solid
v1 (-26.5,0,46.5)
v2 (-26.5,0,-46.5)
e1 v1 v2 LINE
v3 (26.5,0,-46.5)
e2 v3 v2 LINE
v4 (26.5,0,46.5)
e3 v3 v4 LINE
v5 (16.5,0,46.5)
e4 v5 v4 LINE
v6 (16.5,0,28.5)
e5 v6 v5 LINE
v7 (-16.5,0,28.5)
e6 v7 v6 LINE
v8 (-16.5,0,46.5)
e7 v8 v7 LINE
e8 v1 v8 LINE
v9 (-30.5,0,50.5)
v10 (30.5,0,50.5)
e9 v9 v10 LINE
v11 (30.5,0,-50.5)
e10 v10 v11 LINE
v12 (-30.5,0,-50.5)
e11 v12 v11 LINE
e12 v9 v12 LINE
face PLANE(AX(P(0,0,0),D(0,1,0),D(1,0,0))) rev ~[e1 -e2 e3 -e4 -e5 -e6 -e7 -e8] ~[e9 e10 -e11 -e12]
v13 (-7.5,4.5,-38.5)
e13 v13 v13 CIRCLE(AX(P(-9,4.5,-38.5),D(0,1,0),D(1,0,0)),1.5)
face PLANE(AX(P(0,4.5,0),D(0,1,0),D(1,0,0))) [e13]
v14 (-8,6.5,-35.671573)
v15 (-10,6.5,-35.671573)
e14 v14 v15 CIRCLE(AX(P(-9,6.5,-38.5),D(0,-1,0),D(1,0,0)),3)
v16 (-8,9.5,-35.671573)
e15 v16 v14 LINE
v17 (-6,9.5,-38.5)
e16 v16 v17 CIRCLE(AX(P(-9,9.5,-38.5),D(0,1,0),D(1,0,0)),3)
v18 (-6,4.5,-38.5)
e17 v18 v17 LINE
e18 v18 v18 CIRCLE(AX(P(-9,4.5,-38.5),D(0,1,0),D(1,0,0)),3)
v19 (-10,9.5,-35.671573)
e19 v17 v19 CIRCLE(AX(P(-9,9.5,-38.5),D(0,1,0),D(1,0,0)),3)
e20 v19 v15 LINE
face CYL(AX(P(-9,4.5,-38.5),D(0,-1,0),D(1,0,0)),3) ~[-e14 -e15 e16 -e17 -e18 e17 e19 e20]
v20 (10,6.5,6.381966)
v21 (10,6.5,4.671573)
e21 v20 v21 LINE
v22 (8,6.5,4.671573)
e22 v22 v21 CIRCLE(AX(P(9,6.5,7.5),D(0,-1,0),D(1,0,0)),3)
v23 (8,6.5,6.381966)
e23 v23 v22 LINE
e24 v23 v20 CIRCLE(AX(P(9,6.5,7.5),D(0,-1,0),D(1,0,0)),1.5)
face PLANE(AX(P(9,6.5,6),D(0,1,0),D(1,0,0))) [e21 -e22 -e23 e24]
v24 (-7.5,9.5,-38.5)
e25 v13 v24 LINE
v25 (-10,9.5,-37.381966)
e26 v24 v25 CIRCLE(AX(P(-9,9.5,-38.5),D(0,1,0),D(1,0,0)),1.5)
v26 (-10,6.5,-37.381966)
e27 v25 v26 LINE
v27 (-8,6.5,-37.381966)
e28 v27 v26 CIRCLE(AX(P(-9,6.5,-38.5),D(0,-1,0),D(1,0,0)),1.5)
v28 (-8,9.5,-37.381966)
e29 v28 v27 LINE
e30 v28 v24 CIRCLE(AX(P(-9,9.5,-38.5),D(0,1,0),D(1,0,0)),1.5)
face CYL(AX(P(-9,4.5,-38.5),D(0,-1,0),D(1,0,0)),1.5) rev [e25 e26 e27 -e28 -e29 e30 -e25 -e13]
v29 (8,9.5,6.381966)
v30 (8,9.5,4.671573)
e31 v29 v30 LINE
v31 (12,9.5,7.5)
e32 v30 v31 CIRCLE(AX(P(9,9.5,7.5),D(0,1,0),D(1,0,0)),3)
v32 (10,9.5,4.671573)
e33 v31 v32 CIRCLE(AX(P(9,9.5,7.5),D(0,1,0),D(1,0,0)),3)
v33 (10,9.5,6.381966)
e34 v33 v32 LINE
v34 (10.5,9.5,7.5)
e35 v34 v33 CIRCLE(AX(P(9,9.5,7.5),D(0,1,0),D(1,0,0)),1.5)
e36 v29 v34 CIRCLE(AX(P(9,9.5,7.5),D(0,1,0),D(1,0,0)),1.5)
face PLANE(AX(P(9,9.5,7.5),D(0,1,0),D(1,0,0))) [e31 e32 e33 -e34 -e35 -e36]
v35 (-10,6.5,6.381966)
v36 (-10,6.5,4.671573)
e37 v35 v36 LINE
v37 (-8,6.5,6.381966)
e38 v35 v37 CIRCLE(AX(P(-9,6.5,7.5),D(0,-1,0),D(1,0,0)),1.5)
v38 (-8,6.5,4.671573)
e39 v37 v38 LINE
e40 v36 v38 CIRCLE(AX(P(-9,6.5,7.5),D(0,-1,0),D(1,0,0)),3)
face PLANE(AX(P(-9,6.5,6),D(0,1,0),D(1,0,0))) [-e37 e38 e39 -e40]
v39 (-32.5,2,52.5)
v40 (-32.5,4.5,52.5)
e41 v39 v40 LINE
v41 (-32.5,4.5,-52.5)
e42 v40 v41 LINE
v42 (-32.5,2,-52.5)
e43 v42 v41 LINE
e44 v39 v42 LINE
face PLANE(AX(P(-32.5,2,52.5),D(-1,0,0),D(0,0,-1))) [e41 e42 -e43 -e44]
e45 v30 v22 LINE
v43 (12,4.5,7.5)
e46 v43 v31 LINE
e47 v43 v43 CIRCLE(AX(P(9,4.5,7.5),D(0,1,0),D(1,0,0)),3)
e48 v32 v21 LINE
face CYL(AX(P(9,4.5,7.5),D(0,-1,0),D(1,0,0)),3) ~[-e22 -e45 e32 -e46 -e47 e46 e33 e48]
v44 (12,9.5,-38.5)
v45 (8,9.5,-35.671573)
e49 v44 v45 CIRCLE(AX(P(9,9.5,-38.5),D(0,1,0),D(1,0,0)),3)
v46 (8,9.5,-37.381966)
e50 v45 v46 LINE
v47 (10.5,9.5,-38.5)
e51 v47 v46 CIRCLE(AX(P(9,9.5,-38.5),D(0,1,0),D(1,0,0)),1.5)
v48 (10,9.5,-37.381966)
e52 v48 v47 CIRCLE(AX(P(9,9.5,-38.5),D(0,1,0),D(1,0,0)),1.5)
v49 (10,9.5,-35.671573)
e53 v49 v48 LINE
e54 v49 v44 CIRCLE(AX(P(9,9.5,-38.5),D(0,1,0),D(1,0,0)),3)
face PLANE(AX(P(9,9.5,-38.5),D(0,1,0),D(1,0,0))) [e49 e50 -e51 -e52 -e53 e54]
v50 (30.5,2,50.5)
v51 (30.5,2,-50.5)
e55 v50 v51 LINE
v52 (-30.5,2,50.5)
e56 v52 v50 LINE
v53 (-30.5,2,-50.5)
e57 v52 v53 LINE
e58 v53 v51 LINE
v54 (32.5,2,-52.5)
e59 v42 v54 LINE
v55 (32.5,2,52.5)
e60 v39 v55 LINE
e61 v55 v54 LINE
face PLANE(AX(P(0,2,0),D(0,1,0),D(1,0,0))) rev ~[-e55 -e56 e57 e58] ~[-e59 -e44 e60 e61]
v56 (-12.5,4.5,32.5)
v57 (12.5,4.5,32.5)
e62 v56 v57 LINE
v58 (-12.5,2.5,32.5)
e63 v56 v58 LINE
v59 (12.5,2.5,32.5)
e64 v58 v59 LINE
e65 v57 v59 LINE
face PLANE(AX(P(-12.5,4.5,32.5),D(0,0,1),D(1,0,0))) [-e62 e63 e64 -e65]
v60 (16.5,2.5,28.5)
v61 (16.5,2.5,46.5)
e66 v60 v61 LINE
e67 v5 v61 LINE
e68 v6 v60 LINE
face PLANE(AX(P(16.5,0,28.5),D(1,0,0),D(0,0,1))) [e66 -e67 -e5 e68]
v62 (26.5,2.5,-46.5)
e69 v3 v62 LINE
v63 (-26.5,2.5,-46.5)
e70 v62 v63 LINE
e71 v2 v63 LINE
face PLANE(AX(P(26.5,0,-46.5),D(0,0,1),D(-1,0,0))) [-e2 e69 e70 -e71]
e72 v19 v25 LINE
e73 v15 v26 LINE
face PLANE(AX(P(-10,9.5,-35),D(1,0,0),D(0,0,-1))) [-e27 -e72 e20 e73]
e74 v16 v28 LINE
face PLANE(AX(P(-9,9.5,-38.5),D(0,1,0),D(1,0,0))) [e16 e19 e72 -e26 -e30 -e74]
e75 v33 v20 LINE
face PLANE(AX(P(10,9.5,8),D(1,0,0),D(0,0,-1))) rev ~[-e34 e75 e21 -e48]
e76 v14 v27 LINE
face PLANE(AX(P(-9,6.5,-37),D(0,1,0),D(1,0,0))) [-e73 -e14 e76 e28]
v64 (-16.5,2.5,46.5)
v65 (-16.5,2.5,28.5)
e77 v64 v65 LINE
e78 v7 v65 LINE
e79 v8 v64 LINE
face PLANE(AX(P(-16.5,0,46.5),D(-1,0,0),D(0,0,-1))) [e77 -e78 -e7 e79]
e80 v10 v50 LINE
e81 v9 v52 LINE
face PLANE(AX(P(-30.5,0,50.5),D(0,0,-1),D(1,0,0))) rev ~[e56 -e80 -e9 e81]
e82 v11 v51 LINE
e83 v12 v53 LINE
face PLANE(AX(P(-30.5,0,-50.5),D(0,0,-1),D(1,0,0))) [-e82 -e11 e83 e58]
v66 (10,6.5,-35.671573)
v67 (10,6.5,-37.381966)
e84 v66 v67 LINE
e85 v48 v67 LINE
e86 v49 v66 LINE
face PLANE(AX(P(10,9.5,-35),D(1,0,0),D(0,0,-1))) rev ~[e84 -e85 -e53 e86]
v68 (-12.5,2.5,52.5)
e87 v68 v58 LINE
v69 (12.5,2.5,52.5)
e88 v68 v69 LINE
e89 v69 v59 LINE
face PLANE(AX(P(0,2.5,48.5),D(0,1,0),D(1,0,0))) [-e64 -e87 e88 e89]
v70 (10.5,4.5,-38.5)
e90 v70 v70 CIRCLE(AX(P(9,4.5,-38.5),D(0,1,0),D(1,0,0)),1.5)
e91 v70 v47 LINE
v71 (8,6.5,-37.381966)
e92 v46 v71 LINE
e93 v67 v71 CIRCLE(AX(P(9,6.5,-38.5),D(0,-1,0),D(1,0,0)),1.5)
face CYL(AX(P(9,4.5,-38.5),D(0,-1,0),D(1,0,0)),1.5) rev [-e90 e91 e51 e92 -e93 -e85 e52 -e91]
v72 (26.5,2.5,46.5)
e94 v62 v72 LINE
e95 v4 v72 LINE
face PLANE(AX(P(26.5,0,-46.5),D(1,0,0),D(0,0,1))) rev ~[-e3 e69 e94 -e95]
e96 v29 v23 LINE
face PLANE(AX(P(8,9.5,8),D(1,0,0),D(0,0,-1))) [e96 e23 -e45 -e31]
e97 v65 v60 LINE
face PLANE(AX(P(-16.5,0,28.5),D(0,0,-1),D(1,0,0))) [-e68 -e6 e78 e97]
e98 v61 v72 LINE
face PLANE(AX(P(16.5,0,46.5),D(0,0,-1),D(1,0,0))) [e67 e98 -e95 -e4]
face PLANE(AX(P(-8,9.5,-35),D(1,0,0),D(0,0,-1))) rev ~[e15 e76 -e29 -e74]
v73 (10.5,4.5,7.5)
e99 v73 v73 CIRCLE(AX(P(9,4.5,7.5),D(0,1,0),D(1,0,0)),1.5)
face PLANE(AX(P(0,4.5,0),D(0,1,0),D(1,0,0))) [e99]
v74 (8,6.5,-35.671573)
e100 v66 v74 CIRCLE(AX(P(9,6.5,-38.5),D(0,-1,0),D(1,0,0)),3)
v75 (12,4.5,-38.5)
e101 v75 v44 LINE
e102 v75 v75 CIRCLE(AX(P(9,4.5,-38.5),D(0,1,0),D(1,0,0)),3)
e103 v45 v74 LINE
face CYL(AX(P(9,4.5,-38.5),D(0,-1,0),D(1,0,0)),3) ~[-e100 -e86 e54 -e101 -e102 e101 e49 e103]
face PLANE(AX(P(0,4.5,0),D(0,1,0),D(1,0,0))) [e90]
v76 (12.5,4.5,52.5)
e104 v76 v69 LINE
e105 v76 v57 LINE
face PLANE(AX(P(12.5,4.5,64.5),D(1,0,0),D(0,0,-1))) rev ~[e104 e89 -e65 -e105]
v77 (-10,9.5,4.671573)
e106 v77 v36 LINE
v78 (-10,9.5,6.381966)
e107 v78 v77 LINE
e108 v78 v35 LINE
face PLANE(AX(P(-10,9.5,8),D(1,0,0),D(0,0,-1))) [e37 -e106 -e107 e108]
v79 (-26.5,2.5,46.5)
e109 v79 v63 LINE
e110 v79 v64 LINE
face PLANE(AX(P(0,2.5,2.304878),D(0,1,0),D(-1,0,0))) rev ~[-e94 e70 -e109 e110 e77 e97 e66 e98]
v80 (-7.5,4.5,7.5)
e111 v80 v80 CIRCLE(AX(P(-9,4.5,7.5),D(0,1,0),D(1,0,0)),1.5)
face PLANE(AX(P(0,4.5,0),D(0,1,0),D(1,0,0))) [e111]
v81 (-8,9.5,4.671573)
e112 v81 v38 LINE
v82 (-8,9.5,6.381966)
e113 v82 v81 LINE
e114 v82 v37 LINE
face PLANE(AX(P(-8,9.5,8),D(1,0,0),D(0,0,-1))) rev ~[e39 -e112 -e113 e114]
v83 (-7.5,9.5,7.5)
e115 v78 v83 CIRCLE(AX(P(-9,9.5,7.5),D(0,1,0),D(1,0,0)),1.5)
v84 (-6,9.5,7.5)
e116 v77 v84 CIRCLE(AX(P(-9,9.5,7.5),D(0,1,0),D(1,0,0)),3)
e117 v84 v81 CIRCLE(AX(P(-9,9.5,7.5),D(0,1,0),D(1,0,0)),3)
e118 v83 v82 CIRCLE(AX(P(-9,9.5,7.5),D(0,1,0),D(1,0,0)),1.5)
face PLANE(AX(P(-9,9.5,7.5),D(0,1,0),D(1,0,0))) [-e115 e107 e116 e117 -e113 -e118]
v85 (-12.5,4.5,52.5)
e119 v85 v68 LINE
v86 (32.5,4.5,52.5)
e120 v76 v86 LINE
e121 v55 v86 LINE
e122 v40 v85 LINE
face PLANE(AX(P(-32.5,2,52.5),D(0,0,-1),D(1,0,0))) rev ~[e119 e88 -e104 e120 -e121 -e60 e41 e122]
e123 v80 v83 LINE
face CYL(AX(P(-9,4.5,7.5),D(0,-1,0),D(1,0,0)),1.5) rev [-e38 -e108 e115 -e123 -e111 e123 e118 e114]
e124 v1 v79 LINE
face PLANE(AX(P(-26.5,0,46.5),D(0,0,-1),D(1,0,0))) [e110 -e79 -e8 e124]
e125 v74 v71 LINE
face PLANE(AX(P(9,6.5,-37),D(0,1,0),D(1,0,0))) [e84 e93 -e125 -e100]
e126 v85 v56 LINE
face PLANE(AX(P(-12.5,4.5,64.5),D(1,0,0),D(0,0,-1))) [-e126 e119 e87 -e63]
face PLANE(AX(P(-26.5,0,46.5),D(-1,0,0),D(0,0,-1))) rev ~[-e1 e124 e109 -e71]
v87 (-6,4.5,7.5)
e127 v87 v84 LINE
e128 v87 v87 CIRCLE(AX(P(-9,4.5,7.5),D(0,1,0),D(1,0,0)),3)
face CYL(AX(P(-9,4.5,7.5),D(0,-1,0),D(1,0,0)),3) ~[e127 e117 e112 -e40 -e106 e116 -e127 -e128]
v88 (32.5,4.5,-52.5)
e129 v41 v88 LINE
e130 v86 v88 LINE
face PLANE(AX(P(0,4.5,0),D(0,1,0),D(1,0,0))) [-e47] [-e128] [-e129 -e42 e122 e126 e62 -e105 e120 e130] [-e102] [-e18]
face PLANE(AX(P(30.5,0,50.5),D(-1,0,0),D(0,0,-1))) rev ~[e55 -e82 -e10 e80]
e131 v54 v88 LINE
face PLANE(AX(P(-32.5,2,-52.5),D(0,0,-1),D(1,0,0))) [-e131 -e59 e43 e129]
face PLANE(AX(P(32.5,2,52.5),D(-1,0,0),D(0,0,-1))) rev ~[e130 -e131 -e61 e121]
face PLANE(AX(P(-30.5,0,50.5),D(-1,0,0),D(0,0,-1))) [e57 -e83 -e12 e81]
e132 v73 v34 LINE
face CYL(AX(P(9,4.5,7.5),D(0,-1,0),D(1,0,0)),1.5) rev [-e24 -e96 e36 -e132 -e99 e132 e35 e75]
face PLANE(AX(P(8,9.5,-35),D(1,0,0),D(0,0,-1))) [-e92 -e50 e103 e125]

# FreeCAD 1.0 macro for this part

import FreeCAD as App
import Part
import Sketcher

V = App.Vector

doc = App.newDocument("Part")
body = doc.addObject("PartDesign::Body", "Body")

# Sketch on XZ plane
sketch1 = body.newObject("Sketcher::SketchObject", "Sketch")
sketch1.AttachmentSupport = (doc.getObject("XZ_Plane"), [""])
sketch1.MapMode = "FlatFace"
sketch1.addGeometry([
    Part.LineSegment(V(-30.5, -50.5, 0), V(-30.5, 50.5, 0)),
    Part.LineSegment(V(-30.5, 50.5, 0), V(30.5, 50.5, 0)),
    Part.LineSegment(V(30.5, 50.5, 0), V(30.5, -50.5, 0)),
    Part.LineSegment(V(30.5, -50.5, 0), V(-30.5, -50.5, 0)),
], False)
sketch1.addConstraint([
    Sketcher.Constraint("Coincident", 0, 2, 1, 1),
    Sketcher.Constraint("Coincident", 1, 2, 2, 1),
    Sketcher.Constraint("Coincident", 2, 2, 3, 1),
    Sketcher.Constraint("Coincident", 3, 2, 0, 1),
    Sketcher.Constraint("Vertical", 0),
    Sketcher.Constraint("Horizontal", 1),
    Sketcher.Constraint("Vertical", 2),
    Sketcher.Constraint("Horizontal", 3),
    Sketcher.Constraint("Symmetric", 0, 2, 2, 2, -1, 1),
    Sketcher.Constraint("DistanceX", 1, 1, 1, 2, 61.0),
    Sketcher.Constraint("DistanceY", 0, 1, 0, 2, 101.0),
])
pad1 = body.newObject("PartDesign::Pad", "Pad")
pad1.Profile = sketch1
pad1.Length = 2
pad1.Reversed = True

# Sketch on XZ plane
sketch2 = body.newObject("Sketcher::SketchObject", "Sketch001")
sketch2.AttachmentSupport = (doc.getObject("XZ_Plane"), [""])
sketch2.MapMode = "FlatFace"
sketch2.AttachmentOffset = App.Placement(V(0, 0, -2), App.Rotation())
sketch2.addGeometry([
    Part.LineSegment(V(-32.5, -52.5, 0), V(-32.5, 52.5, 0)),
    Part.LineSegment(V(-32.5, 52.5, 0), V(32.5, 52.5, 0)),
    Part.LineSegment(V(32.5, 52.5, 0), V(32.5, -52.5, 0)),
    Part.LineSegment(V(32.5, -52.5, 0), V(-32.5, -52.5, 0)),
], False)
sketch2.addConstraint([
    Sketcher.Constraint("Coincident", 0, 2, 1, 1),
    Sketcher.Constraint("Coincident", 1, 2, 2, 1),
    Sketcher.Constraint("Coincident", 2, 2, 3, 1),
    Sketcher.Constraint("Coincident", 3, 2, 0, 1),
    Sketcher.Constraint("Vertical", 0),
    Sketcher.Constraint("Horizontal", 1),
    Sketcher.Constraint("Vertical", 2),
    Sketcher.Constraint("Horizontal", 3),
    Sketcher.Constraint("Symmetric", 0, 2, 2, 2, -1, 1),
    Sketcher.Constraint("DistanceX", 1, 1, 1, 2, 65.0),
    Sketcher.Constraint("DistanceY", 0, 1, 0, 2, 105.0),
])
pad2 = body.newObject("PartDesign::Pad", "Pad001")
pad2.Profile = sketch2
pad2.Length = 2.5
pad2.Reversed = True

# Sketch on XZ plane
sketch3 = body.newObject("Sketcher::SketchObject", "Sketch002")
sketch3.AttachmentSupport = (doc.getObject("XZ_Plane"), [""])
sketch3.MapMode = "FlatFace"
sketch3.AttachmentOffset = App.Placement(V(0, 0, -4.5), App.Rotation())
sketch3.addGeometry([
    Part.Circle(V(-9, 7.5, 0), V(0, 0, 1), 3),  # 0
    Part.Circle(V(-9, 7.5, 0), V(0, 0, 1), 1.5),  # 1
    Part.Circle(V(9, 7.5, 0), V(0, 0, 1), 3),  # 2
    Part.Circle(V(9, 7.5, 0), V(0, 0, 1), 1.5),  # 3
    Part.Circle(V(9, -38.5, 0), V(0, 0, 1), 3),  # 4
    Part.Circle(V(9, -38.5, 0), V(0, 0, 1), 1.5),  # 5
    Part.Circle(V(-9, -38.5, 0), V(0, 0, 1), 3),  # 6
    Part.Circle(V(-9, -38.5, 0), V(0, 0, 1), 1.5),  # 7
], False)
sketch3.addConstraint([
    Sketcher.Constraint("Coincident", 1, 3, 0, 3),
    Sketcher.Constraint("Coincident", 3, 3, 2, 3),
    Sketcher.Constraint("Coincident", 5, 3, 4, 3),
    Sketcher.Constraint("Coincident", 7, 3, 6, 3),
    Sketcher.Constraint("Equal", 0, 2),
    Sketcher.Constraint("Equal", 1, 3),
    Sketcher.Constraint("Equal", 2, 4),
    Sketcher.Constraint("Equal", 3, 5),
    Sketcher.Constraint("Equal", 4, 6),
    Sketcher.Constraint("Equal", 5, 7),
    Sketcher.Constraint("Symmetric", 0, 3, 2, 3, -2),
    Sketcher.Constraint("Symmetric", 4, 3, 6, 3, -2),
    Sketcher.Constraint("Vertical", 3, 3, 4, 3),
    Sketcher.Constraint("Diameter", 0, 6.0),
    Sketcher.Constraint("Diameter", 1, 3.0),
    Sketcher.Constraint("DistanceX", 0, 3, -1, 1, 9.0),
    Sketcher.Constraint("DistanceY", 4, 3, 2, 3, 46.0),
    Sketcher.Constraint("DistanceY", -1, 1, 0, 3, 7.5),
])
pad3 = body.newObject("PartDesign::Pad", "Pad002")
pad3.Profile = sketch3
pad3.Length = 5
pad3.Reversed = True

# Sketch on XZ plane
sketch4 = body.newObject("Sketcher::SketchObject", "Sketch003")
sketch4.AttachmentSupport = (doc.getObject("XZ_Plane"), [""])
sketch4.MapMode = "FlatFace"
sketch4.AttachmentOffset = App.Placement(V(0, 0, -4.5), App.Rotation())
sketch4.addGeometry([
    Part.LineSegment(V(-12.5, 32.5, 0), V(-12.5, 64.5, 0)),
    Part.LineSegment(V(-12.5, 64.5, 0), V(12.5, 64.5, 0)),
    Part.LineSegment(V(12.5, 64.5, 0), V(12.5, 32.5, 0)),
    Part.LineSegment(V(12.5, 32.5, 0), V(-12.5, 32.5, 0)),
], False)
sketch4.addConstraint([
    Sketcher.Constraint("Coincident", 0, 2, 1, 1),
    Sketcher.Constraint("Coincident", 1, 2, 2, 1),
    Sketcher.Constraint("Coincident", 2, 2, 3, 1),
    Sketcher.Constraint("Coincident", 3, 2, 0, 1),
    Sketcher.Constraint("Vertical", 0),
    Sketcher.Constraint("Horizontal", 1),
    Sketcher.Constraint("Vertical", 2),
    Sketcher.Constraint("Horizontal", 3),
    Sketcher.Constraint("DistanceX", 1, 1, 1, 2, 25.0),
    Sketcher.Constraint("DistanceY", 0, 1, 0, 2, 32.0),
    Sketcher.Constraint("DistanceX", 0, 2, -1, 1, 12.5),
    Sketcher.Constraint("DistanceY", -1, 1, 0, 2, 64.5),
])
pocket1 = body.newObject("PartDesign::Pocket", "Pocket")
pocket1.Profile = sketch4
pocket1.Length = 2
pocket1.Reversed = True

# Sketch on XZ plane
sketch5 = body.newObject("Sketcher::SketchObject", "Sketch004")
sketch5.AttachmentSupport = (doc.getObject("XZ_Plane"), [""])
sketch5.MapMode = "FlatFace"
sketch5.AttachmentOffset = App.Placement(V(0, 0, -9.5), App.Rotation())
sketch5.addGeometry([
    Part.LineSegment(V(8, 4, 0), V(8, 8, 0)),  # 0
    Part.LineSegment(V(8, 8, 0), V(10, 8, 0)),  # 1
    Part.LineSegment(V(10, 8, 0), V(10, 4, 0)),  # 2
    Part.LineSegment(V(10, 4, 0), V(8, 4, 0)),  # 3
    Part.LineSegment(V(-10, 4, 0), V(-10, 8, 0)),  # 4
    Part.LineSegment(V(-10, 8, 0), V(-8, 8, 0)),  # 5
    Part.LineSegment(V(-8, 8, 0), V(-8, 4, 0)),  # 6
    Part.LineSegment(V(-8, 4, 0), V(-10, 4, 0)),  # 7
    Part.LineSegment(V(8, -39, 0), V(8, -35, 0)),  # 8
    Part.LineSegment(V(8, -35, 0), V(10, -35, 0)),  # 9
    Part.LineSegment(V(10, -35, 0), V(10, -39, 0)),  # 10
    Part.LineSegment(V(10, -39, 0), V(8, -39, 0)),  # 11
    Part.LineSegment(V(-10, -39, 0), V(-10, -35, 0)),  # 12
    Part.LineSegment(V(-10, -35, 0), V(-8, -35, 0)),  # 13
    Part.LineSegment(V(-8, -35, 0), V(-8, -39, 0)),  # 14
    Part.LineSegment(V(-8, -39, 0), V(-10, -39, 0)),  # 15
], False)
sketch5.addConstraint([
    Sketcher.Constraint("Coincident", 0, 2, 1, 1),
    Sketcher.Constraint("Coincident", 1, 2, 2, 1),
    Sketcher.Constraint("Coincident", 2, 2, 3, 1),
    Sketcher.Constraint("Coincident", 3, 2, 0, 1),
    Sketcher.Constraint("Coincident", 4, 2, 5, 1),
    Sketcher.Constraint("Coincident", 5, 2, 6, 1),
    Sketcher.Constraint("Coincident", 6, 2, 7, 1),
    Sketcher.Constraint("Coincident", 7, 2, 4, 1),
    Sketcher.Constraint("Coincident", 8, 2, 9, 1),
    Sketcher.Constraint("Coincident", 9, 2, 10, 1),
    Sketcher.Constraint("Coincident", 10, 2, 11, 1),
    Sketcher.Constraint("Coincident", 11, 2, 8, 1),
    Sketcher.Constraint("Coincident", 12, 2, 13, 1),
    Sketcher.Constraint("Coincident", 13, 2, 14, 1),
    Sketcher.Constraint("Coincident", 14, 2, 15, 1),
    Sketcher.Constraint("Coincident", 15, 2, 12, 1),
    Sketcher.Constraint("Vertical", 0),
    Sketcher.Constraint("Horizontal", 1),
    Sketcher.Constraint("Vertical", 2),
    Sketcher.Constraint("Horizontal", 3),
    Sketcher.Constraint("Vertical", 4),
    Sketcher.Constraint("Horizontal", 5),
    Sketcher.Constraint("Vertical", 6),
    Sketcher.Constraint("Horizontal", 7),
    Sketcher.Constraint("Vertical", 8),
    Sketcher.Constraint("Horizontal", 9),
    Sketcher.Constraint("Vertical", 10),
    Sketcher.Constraint("Horizontal", 11),
    Sketcher.Constraint("Vertical", 12),
    Sketcher.Constraint("Horizontal", 13),
    Sketcher.Constraint("Vertical", 14),
    Sketcher.Constraint("Horizontal", 15),
    Sketcher.Constraint("Symmetric", 1, 2, 4, 2, -2),
    Sketcher.Constraint("Symmetric", 3, 2, 6, 2, -2),
    Sketcher.Constraint("Symmetric", 9, 2, 12, 2, -2),
    Sketcher.Constraint("Symmetric", 11, 2, 14, 2, -2),
    Sketcher.Constraint("Vertical", 3, 2, 8, 2),
    Sketcher.Constraint("Vertical", 2, 2, 9, 2),
    Sketcher.Constraint("Equal", 6, 8),
    Sketcher.Constraint("DistanceX", 1, 1, 1, 2, 2.0),
    Sketcher.Constraint("DistanceY", 0, 1, 0, 2, 4.0),
    Sketcher.Constraint("DistanceX", -1, 1, 0, 2, 8.0),
    Sketcher.Constraint("DistanceY", -1, 1, 0, 2, 8.0),
    Sketcher.Constraint("DistanceY", 8, 2, -1, 1, 35.0),
])
pocket2 = body.newObject("PartDesign::Pocket", "Pocket001")
pocket2.Profile = sketch5
pocket2.Length = 3
pocket2.Reversed = True

# Sketch on XZ plane
sketch6 = body.newObject("Sketcher::SketchObject", "Sketch005")
sketch6.AttachmentSupport = (doc.getObject("XZ_Plane"), [""])
sketch6.MapMode = "FlatFace"
sketch6.addGeometry([
    Part.LineSegment(V(16.5, 28.5, 0), V(-16.5, 28.5, 0)),  # 0
    Part.LineSegment(V(-16.5, 28.5, 0), V(-16.5, 46.5, 0)),  # 1
    Part.LineSegment(V(-16.5, 46.5, 0), V(-26.5, 46.5, 0)),  # 2
    Part.LineSegment(V(-26.5, 46.5, 0), V(-26.5, -46.5, 0)),  # 3
    Part.LineSegment(V(-26.5, -46.5, 0), V(26.5, -46.5, 0)),  # 4
    Part.LineSegment(V(26.5, -46.5, 0), V(26.5, 46.5, 0)),  # 5
    Part.LineSegment(V(26.5, 46.5, 0), V(16.5, 46.5, 0)),  # 6
    Part.LineSegment(V(16.5, 46.5, 0), V(16.5, 28.5, 0)),  # 7
], False)
sketch6.addConstraint([
    Sketcher.Constraint("Coincident", 0, 2, 1, 1),
    Sketcher.Constraint("Coincident", 1, 2, 2, 1),
    Sketcher.Constraint("Coincident", 2, 2, 3, 1),
    Sketcher.Constraint("Coincident", 3, 2, 4, 1),
    Sketcher.Constraint("Coincident", 4, 2, 5, 1),
    Sketcher.Constraint("Coincident", 5, 2, 6, 1),
    Sketcher.Constraint("Coincident", 6, 2, 7, 1),
    Sketcher.Constraint("Coincident", 7, 2, 0, 1),
    Sketcher.Constraint("Horizontal", 0),
    Sketcher.Constraint("Vertical", 1),
    Sketcher.Constraint("Horizontal", 2),
    Sketcher.Constraint("Vertical", 3),
    Sketcher.Constraint("Horizontal", 4),
    Sketcher.Constraint("Vertical", 5),
    Sketcher.Constraint("Horizontal", 6),
    Sketcher.Constraint("Vertical", 7),
    Sketcher.Constraint("Symmetric", 2, 2, 4, 2, -1, 1),
    Sketcher.Constraint("Symmetric", 1, 2, 6, 2, -2),
    Sketcher.Constraint("DistanceX", 0, 2, 0, 1, 33.0),
    Sketcher.Constraint("DistanceX", 2, 2, 2, 1, 10.0),
    Sketcher.Constraint("DistanceY", 1, 1, 1, 2, 18.0),
    Sketcher.Constraint("DistanceY", 3, 2, 3, 1, 93.0),
])
pocket3 = body.newObject("PartDesign::Pocket", "Pocket002")
pocket3.Profile = sketch6
pocket3.Length = 2.5

doc.recompute()
